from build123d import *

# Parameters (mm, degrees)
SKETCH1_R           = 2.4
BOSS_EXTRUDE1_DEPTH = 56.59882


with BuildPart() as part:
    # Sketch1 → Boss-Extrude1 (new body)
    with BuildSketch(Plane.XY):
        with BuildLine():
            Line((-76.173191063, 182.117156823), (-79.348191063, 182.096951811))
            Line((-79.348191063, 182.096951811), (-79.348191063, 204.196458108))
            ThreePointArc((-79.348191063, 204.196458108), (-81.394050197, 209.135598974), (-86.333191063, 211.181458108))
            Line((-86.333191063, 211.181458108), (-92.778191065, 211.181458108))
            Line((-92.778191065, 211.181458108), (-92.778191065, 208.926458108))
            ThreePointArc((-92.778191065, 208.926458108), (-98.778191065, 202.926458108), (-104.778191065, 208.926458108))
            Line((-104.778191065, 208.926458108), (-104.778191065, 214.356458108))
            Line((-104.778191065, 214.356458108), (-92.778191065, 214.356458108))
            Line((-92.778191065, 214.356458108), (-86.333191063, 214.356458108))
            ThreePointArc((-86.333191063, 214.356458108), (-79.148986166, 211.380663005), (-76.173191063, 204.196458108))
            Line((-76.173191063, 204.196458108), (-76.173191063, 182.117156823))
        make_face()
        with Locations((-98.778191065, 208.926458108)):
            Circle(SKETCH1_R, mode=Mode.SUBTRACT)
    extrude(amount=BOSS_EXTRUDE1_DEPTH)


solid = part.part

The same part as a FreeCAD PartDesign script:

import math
import FreeCAD as App
import Part
import Sketcher
from FreeCAD import Vector

doc = App.newDocument("Part")
body = doc.addObject("PartDesign::Body", "Body")

sketch1 = doc.addObject("Sketcher::SketchObject", "Sketch")
body.addObject(sketch1)
sketch1.AttachmentSupport = (doc.XY_Plane, [""])
sketch1.MapMode = "FlatFace"
sketch1.addGeometry(Part.LineSegment(Vector(-79.348191, 182.096952, 0), Vector(-76.173191, 182.117157, 0)), False)
sketch1.addGeometry(Part.LineSegment(Vector(-76.173191, 182.117157, 0), Vector(-76.173191, 204.196458, 0)), False)
sketch1.addGeometry(Part.ArcOfCircle(Part.Circle(Vector(-86.333191, 204.196458, 0), Vector(0, 0, 1), 10.16), math.radians(0), math.radians(90)), False)
sketch1.addGeometry(Part.LineSegment(Vector(-86.333191, 214.356458, 0), Vector(-104.778191, 214.356458, 0)), False)
sketch1.addGeometry(Part.LineSegment(Vector(-104.778191, 214.356458, 0), Vector(-104.778191, 208.926458, 0)), False)
sketch1.addGeometry(Part.ArcOfCircle(Part.Circle(Vector(-98.778191, 208.926458, 0), Vector(0, 0, 1), 6), math.radians(180), math.radians(360)), False)
sketch1.addGeometry(Part.LineSegment(Vector(-92.778191, 208.926458, 0), Vector(-92.778191, 211.181458, 0)), False)
sketch1.addGeometry(Part.LineSegment(Vector(-92.778191, 211.181458, 0), Vector(-86.333191, 211.181458, 0)), False)
sketch1.addGeometry(Part.ArcOfCircle(Part.Circle(Vector(-86.333191, 204.196458, 0), Vector(0, 0, 1), 6.985), math.radians(0), math.radians(90)), False)
sketch1.addGeometry(Part.LineSegment(Vector(-79.348191, 204.196458, 0), Vector(-79.348191, 182.096952, 0)), False)
sketch1.addGeometry(Part.Circle(Vector(-98.778191, 208.926458, 0), Vector(0, 0, 1), 2.4), False)
sketch1.addConstraint(Sketcher.Constraint("Coincident", 0, 2, 1, 1))
sketch1.addConstraint(Sketcher.Constraint("Tangent", 1, 2, 2, 1))
sketch1.addConstraint(Sketcher.Constraint("Tangent", 2, 2, 3, 1))
sketch1.addConstraint(Sketcher.Constraint("Coincident", 3, 2, 4, 1))
sketch1.addConstraint(Sketcher.Constraint("Tangent", 4, 2, 5, 1))
sketch1.addConstraint(Sketcher.Constraint("Tangent", 5, 2, 6, 1))
sketch1.addConstraint(Sketcher.Constraint("Coincident", 6, 2, 7, 1))
sketch1.addConstraint(Sketcher.Constraint("Tangent", 7, 2, 8, 2))
sketch1.addConstraint(Sketcher.Constraint("Tangent", 8, 1, 9, 1))
sketch1.addConstraint(Sketcher.Constraint("Coincident", 9, 2, 0, 1))
sketch1.addConstraint(Sketcher.Constraint("Vertical", 1))
sketch1.addConstraint(Sketcher.Constraint("Horizontal", 3))
sketch1.addConstraint(Sketcher.Constraint("Vertical", 4))
sketch1.addConstraint(Sketcher.Constraint("Vertical", 6))
sketch1.addConstraint(Sketcher.Constraint("Horizontal", 7))
sketch1.addConstraint(Sketcher.Constraint("Vertical", 9))
sketch1.addConstraint(Sketcher.Constraint("Coincident", 8, 3, 2, 3))
sketch1.addConstraint(Sketcher.Constraint("Coincident", 10, 3, 5, 3))
sketch1.addConstraint(Sketcher.Constraint("Radius", 5, 6.0))
sketch1.addConstraint(Sketcher.Constraint("Diameter", 10, 4.8))
sketch1.addConstraint(Sketcher.Constraint("Radius", 2, 10.16))
sketch1.addConstraint(Sketcher.Constraint("Radius", 8, 6.985))
sketch1.addConstraint(Sketcher.Constraint("DistanceY", 4, 2, 4, 1, 5.43))
sketch1.addConstraint(Sketcher.Constraint("DistanceX", 3, 2, 3, 1, 18.445))
sketch1.addConstraint(Sketcher.Constraint("DistanceY", 1, 1, 1, 2, 22.079301))
sketch1.addConstraint(Sketcher.Constraint("DistanceY", 9, 2, 9, 1, 22.099506))
sketch1.addConstraint(Sketcher.Constraint("DistanceX", 2, 3, -1, 1, 86.333191))
sketch1.addConstraint(Sketcher.Constraint("DistanceY", -1, 1, 2, 3, 204.196458))
pad1 = doc.addObject("PartDesign::Pad", "Pad")
body.addObject(pad1)
pad1.Profile = sketch1
pad1.Length = 56.59882

doc.recompute()
